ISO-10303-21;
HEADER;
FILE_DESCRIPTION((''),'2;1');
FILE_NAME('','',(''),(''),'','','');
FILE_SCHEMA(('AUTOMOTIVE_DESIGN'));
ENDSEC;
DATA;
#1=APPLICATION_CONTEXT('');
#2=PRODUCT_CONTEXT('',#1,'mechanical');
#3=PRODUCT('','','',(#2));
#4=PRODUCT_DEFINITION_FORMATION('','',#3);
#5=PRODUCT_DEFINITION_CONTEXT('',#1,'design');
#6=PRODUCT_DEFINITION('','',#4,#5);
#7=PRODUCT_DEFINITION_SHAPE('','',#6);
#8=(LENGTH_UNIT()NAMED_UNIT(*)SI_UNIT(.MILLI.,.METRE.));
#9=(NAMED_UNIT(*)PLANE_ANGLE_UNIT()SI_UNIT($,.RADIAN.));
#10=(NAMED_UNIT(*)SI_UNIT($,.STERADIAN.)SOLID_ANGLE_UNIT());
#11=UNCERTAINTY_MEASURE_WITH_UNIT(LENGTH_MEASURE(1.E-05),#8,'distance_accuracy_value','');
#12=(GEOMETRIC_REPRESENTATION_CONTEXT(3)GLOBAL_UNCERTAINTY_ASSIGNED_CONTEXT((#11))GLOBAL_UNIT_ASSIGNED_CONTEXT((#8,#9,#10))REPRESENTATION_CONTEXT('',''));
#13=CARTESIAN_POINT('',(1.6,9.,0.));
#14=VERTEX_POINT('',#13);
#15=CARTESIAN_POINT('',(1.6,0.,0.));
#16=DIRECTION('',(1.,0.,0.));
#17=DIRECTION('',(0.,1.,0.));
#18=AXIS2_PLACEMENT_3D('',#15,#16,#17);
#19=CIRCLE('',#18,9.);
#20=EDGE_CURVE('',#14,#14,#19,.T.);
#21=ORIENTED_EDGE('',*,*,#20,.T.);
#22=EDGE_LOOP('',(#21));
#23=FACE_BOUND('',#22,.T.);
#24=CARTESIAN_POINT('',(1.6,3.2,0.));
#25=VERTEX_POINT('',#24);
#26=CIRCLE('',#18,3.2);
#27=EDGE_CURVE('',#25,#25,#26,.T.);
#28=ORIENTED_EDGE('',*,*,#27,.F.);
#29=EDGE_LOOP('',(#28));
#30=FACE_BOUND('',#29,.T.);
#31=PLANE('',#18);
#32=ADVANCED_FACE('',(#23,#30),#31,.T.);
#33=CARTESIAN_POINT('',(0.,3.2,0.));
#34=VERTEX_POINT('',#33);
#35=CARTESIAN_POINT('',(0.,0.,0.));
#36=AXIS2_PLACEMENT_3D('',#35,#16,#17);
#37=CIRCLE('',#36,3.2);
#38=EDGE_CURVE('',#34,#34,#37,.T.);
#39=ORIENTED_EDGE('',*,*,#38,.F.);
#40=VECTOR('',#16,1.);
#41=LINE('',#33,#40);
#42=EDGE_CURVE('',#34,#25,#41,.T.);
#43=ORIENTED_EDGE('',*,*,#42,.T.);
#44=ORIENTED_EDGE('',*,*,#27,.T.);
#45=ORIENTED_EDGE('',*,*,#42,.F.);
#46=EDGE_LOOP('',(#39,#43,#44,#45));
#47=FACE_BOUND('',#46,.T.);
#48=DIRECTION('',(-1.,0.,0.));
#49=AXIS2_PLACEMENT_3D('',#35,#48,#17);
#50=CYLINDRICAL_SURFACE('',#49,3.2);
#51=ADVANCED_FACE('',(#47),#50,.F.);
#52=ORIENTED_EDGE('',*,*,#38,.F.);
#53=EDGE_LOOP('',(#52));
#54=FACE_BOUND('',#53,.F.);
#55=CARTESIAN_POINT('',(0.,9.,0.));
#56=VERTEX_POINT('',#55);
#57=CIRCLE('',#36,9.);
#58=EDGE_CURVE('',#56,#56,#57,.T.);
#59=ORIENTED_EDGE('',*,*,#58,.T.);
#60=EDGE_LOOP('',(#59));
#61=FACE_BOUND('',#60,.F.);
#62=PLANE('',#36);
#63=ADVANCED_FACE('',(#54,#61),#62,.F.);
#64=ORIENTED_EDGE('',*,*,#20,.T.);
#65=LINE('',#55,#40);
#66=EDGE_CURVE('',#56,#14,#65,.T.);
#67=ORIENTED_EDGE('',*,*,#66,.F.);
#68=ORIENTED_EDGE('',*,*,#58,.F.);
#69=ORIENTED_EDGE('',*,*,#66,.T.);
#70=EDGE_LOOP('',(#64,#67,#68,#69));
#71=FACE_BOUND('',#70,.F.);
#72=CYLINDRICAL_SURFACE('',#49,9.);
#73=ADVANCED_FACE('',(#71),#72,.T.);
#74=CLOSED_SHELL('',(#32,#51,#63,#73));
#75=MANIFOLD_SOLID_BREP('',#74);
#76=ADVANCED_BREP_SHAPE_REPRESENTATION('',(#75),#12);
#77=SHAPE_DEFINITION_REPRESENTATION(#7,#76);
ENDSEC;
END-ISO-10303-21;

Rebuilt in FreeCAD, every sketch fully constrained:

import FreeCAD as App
import Part
import Sketcher
Q = App.Units.Quantity

doc = App.newDocument("Part")
body = doc.addObject("PartDesign::Body", "Body")

# Sketch on YZ plane
sketch1 = body.newObject("Sketcher::SketchObject", "Sketch")
sketch1.AttachmentSupport = (doc.getObject("YZ_Plane"), [""])
sketch1.MapMode = "FlatFace"
sketch1.addGeometry(Part.Circle(App.Vector(0, 0, 0), App.Vector(0, 0, 1), 9), False)
sketch1.addGeometry(Part.Circle(App.Vector(0, 0, 0), App.Vector(0, 0, 1), 3.2), False)
sketch1.addConstraint(Sketcher.Constraint("Coincident", 0, 3, -1, 1))
sketch1.addConstraint(Sketcher.Constraint("Coincident", 1, 3, -1, 1))
sketch1.addConstraint(Sketcher.Constraint("Diameter", 0, Q("18 mm")))
sketch1.addConstraint(Sketcher.Constraint("Diameter", 1, Q("6.4 mm")))
pad1 = body.newObject("PartDesign::Pad", "Pad")
pad1.Profile = sketch1
pad1.Length = 1.6

doc.recompute()
